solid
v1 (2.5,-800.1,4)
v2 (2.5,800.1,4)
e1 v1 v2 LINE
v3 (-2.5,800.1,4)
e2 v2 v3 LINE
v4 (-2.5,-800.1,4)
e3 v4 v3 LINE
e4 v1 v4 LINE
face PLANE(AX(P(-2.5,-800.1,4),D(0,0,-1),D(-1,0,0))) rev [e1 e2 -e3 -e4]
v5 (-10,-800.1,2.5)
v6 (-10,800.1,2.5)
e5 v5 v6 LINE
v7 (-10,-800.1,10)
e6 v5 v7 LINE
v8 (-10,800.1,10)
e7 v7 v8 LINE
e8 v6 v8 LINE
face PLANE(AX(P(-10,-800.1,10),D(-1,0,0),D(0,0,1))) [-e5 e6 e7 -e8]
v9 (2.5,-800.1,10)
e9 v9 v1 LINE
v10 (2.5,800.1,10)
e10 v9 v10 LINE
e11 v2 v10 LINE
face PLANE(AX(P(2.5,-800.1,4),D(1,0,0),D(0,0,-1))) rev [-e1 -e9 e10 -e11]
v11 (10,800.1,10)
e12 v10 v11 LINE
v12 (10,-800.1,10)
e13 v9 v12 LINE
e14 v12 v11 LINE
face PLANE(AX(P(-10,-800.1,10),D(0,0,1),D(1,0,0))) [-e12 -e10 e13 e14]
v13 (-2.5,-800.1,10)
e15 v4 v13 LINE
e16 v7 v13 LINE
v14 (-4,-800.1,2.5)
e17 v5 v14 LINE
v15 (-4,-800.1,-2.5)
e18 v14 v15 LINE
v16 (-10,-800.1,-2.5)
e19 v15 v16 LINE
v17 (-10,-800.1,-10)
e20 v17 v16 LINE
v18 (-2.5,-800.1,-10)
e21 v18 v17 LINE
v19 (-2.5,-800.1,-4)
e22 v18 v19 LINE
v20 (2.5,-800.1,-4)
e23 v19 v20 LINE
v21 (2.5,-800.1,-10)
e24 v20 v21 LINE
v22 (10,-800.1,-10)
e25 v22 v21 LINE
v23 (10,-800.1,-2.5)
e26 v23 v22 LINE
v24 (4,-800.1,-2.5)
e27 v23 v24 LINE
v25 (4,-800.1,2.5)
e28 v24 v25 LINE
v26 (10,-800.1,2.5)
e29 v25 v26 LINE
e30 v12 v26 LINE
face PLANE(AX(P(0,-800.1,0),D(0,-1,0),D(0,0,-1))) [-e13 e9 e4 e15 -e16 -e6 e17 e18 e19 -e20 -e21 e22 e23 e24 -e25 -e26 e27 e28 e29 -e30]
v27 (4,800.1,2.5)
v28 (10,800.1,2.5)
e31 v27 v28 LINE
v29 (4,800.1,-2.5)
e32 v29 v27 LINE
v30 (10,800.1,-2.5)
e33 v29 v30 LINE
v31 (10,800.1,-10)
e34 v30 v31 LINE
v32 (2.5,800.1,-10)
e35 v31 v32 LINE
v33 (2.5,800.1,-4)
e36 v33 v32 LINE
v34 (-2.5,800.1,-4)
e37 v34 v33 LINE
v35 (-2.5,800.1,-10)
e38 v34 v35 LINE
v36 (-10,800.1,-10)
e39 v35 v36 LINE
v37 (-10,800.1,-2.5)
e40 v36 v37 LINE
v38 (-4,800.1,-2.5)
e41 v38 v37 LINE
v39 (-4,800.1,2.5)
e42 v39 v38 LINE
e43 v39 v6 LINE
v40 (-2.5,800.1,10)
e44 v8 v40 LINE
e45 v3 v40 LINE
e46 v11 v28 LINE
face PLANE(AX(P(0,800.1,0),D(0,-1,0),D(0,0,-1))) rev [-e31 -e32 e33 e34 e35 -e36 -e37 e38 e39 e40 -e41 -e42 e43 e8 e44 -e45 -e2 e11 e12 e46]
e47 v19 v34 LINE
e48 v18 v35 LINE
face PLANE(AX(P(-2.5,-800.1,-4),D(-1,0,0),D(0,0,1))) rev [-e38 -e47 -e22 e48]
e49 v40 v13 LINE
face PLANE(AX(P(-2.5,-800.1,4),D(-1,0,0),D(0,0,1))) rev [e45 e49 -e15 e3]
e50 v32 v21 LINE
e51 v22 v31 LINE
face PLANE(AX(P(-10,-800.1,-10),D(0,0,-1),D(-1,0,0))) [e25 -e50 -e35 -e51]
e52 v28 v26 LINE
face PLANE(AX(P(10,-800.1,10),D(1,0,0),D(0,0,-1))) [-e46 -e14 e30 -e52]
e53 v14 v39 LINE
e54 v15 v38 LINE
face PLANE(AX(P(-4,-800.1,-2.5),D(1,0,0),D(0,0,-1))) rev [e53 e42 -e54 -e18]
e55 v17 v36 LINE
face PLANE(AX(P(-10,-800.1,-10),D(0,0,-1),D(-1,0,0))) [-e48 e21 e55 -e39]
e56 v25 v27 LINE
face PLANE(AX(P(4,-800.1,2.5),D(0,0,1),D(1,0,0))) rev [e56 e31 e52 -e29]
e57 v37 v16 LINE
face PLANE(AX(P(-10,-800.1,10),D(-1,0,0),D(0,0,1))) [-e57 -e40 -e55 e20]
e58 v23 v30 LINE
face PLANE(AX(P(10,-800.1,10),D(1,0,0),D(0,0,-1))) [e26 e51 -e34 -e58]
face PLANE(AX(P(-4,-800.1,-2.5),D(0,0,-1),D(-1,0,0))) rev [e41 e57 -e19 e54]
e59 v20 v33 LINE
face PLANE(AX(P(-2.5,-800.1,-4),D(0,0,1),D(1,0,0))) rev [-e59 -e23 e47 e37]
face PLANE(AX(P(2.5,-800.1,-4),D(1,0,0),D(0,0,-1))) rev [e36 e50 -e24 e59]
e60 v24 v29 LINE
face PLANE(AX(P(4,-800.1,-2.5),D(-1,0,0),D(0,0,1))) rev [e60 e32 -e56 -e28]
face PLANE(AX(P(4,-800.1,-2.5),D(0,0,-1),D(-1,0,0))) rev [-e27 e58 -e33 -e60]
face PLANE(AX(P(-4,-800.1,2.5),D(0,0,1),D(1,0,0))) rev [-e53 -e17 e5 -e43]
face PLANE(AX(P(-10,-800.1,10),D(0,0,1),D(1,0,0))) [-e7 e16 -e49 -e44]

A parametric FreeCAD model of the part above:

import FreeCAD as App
import Part
import Sketcher

doc = App.newDocument("Part")
params = doc.addObject("Spreadsheet::Sheet", "Params")
for row, (alias, value) in enumerate([
    ("sketch1_width", "20 mm"),
    ("pad1_length", "800.1 mm"),
    ("pad1_length2", "800.1 mm"),
    ("sketch2_width", "5 mm"),
    ("sketch2_width2", "12 mm"),
], start=1):
    params.set(f"A{row}", alias)
    params.set(f"B{row}", "=" + value)
    params.setAlias(f"B{row}", alias)

body = doc.addObject("PartDesign::Body", "Body")

# Sketch on XZ plane
sketch1 = body.newObject("Sketcher::SketchObject", "Sketch")
sketch1.AttachmentSupport = (doc.getObject("XZ_Plane"), [""])
sketch1.MapMode = "FlatFace"
sketch1.addGeometry(Part.LineSegment(App.Vector(-10, -10, 0), App.Vector(-10, 10, 0)), False)
sketch1.addGeometry(Part.LineSegment(App.Vector(-10, 10, 0), App.Vector(10, 10, 0)), False)
sketch1.addGeometry(Part.LineSegment(App.Vector(10, 10, 0), App.Vector(10, -10, 0)), False)
sketch1.addGeometry(Part.LineSegment(App.Vector(10, -10, 0), App.Vector(-10, -10, 0)), False)
sketch1.addConstraint(Sketcher.Constraint("Coincident", 0, 2, 1, 1))
sketch1.addConstraint(Sketcher.Constraint("Coincident", 1, 2, 2, 1))
sketch1.addConstraint(Sketcher.Constraint("Coincident", 2, 2, 3, 1))
sketch1.addConstraint(Sketcher.Constraint("Coincident", 3, 2, 0, 1))
sketch1.addConstraint(Sketcher.Constraint("Vertical", 0))
sketch1.addConstraint(Sketcher.Constraint("Horizontal", 1))
sketch1.addConstraint(Sketcher.Constraint("Vertical", 2))
sketch1.addConstraint(Sketcher.Constraint("Horizontal", 3))
sketch1.addConstraint(Sketcher.Constraint("Symmetric", 0, 2, 2, 2, -1, 1))
sketch1.addConstraint(Sketcher.Constraint("Equal", 3, 0))
sketch1.addConstraint(Sketcher.Constraint("DistanceX", 1, 1, 1, 2, 20.0))
sketch1.setExpression("Constraints[10]", "Params.sketch1_width")
pad1 = body.newObject("PartDesign::Pad", "Pad")
pad1.Profile = sketch1
pad1.Type = "TwoLengths"
pad1.setExpression("Length", "Params.pad1_length")
pad1.setExpression("Length2", "Params.pad1_length2")
pad1.Reversed = True

# Sketch on XZ plane
sketch2 = body.newObject("Sketcher::SketchObject", "Sketch001")
sketch2.AttachmentSupport = (doc.getObject("XZ_Plane"), [""])
sketch2.MapMode = "FlatFace"
sketch2.addGeometry(Part.LineSegment(App.Vector(-2, -16, 0), App.Vector(-2, -4, 0)), False)
sketch2.addGeometry(Part.LineSegment(App.Vector(-2, -4, 0), App.Vector(2, -4, 0)), False)
sketch2.addGeometry(Part.LineSegment(App.Vector(2, -4, 0), App.Vector(2, -16, 0)), False)
sketch2.addGeometry(Part.LineSegment(App.Vector(2, -16, 0), App.Vector(-2, -16, 0)), False)
sketch2.addGeometry(Part.LineSegment(App.Vector(4, -2, 0), App.Vector(4, 2, 0)), False)
sketch2.addGeometry(Part.LineSegment(App.Vector(4, 2, 0), App.Vector(16, 2, 0)), False)
sketch2.addGeometry(Part.LineSegment(App.Vector(16, 2, 0), App.Vector(16, -2, 0)), False)
sketch2.addGeometry(Part.LineSegment(App.Vector(16, -2, 0), App.Vector(4, -2, 0)), False)
sketch2.addGeometry(Part.LineSegment(App.Vector(-16, -2, 0), App.Vector(-16, 2, 0)), False)
sketch2.addGeometry(Part.LineSegment(App.Vector(-16, 2, 0), App.Vector(-4, 2, 0)), False)
sketch2.addGeometry(Part.LineSegment(App.Vector(-4, 2, 0), App.Vector(-4, -2, 0)), False)
sketch2.addGeometry(Part.LineSegment(App.Vector(-4, -2, 0), App.Vector(-16, -2, 0)), False)
sketch2.addGeometry(Part.LineSegment(App.Vector(-2, 4, 0), App.Vector(-2, 16, 0)), False)
sketch2.addGeometry(Part.LineSegment(App.Vector(-2, 16, 0), App.Vector(2, 16, 0)), False)
sketch2.addGeometry(Part.LineSegment(App.Vector(2, 16, 0), App.Vector(2, 4, 0)), False)
sketch2.addGeometry(Part.LineSegment(App.Vector(2, 4, 0), App.Vector(-2, 4, 0)), False)
sketch2.addConstraint(Sketcher.Constraint("Coincident", 0, 2, 1, 1))
sketch2.addConstraint(Sketcher.Constraint("Coincident", 1, 2, 2, 1))
sketch2.addConstraint(Sketcher.Constraint("Coincident", 2, 2, 3, 1))
sketch2.addConstraint(Sketcher.Constraint("Coincident", 3, 2, 0, 1))
sketch2.addConstraint(Sketcher.Constraint("Coincident", 4, 2, 5, 1))
sketch2.addConstraint(Sketcher.Constraint("Coincident", 5, 2, 6, 1))
sketch2.addConstraint(Sketcher.Constraint("Coincident", 6, 2, 7, 1))
sketch2.addConstraint(Sketcher.Constraint("Coincident", 7, 2, 4, 1))
sketch2.addConstraint(Sketcher.Constraint("Coincident", 8, 2, 9, 1))
sketch2.addConstraint(Sketcher.Constraint("Coincident", 9, 2, 10, 1))
sketch2.addConstraint(Sketcher.Constraint("Coincident", 10, 2, 11, 1))
sketch2.addConstraint(Sketcher.Constraint("Coincident", 11, 2, 8, 1))
sketch2.addConstraint(Sketcher.Constraint("Coincident", 12, 2, 13, 1))
sketch2.addConstraint(Sketcher.Constraint("Coincident", 13, 2, 14, 1))
sketch2.addConstraint(Sketcher.Constraint("Coincident", 14, 2, 15, 1))
sketch2.addConstraint(Sketcher.Constraint("Coincident", 15, 2, 12, 1))
sketch2.addConstraint(Sketcher.Constraint("Vertical", 0))
sketch2.addConstraint(Sketcher.Constraint("Horizontal", 1))
sketch2.addConstraint(Sketcher.Constraint("Vertical", 2))
sketch2.addConstraint(Sketcher.Constraint("Horizontal", 3))
sketch2.addConstraint(Sketcher.Constraint("Vertical", 4))
sketch2.addConstraint(Sketcher.Constraint("Horizontal", 5))
sketch2.addConstraint(Sketcher.Constraint("Vertical", 6))
sketch2.addConstraint(Sketcher.Constraint("Horizontal", 7))
sketch2.addConstraint(Sketcher.Constraint("Vertical", 8))
sketch2.addConstraint(Sketcher.Constraint("Horizontal", 9))
sketch2.addConstraint(Sketcher.Constraint("Vertical", 10))
sketch2.addConstraint(Sketcher.Constraint("Horizontal", 11))
sketch2.addConstraint(Sketcher.Constraint("Vertical", 12))
sketch2.addConstraint(Sketcher.Constraint("Horizontal", 13))
sketch2.addConstraint(Sketcher.Constraint("Vertical", 14))
sketch2.addConstraint(Sketcher.Constraint("Horizontal", 15))
sketch2.addConstraint(Sketcher.Constraint("Symmetric", 6, 2, 8, 2, -1, 1))
sketch2.addConstraint(Sketcher.Constraint("Symmetric", 4, 2, 10, 2, -1, 1))
sketch2.addConstraint(Sketcher.Constraint("Symmetric", 2, 2, 12, 2, -1, 1))
sketch2.addConstraint(Sketcher.Constraint("Symmetric", 0, 2, 14, 2, -1, 1))
sketch2.addConstraint(Sketcher.Constraint("Horizontal", 5, 2, 8, 2))
sketch2.addConstraint(Sketcher.Constraint("Vertical", 3, 2, 12, 2))
sketch2.addConstraint(Sketcher.Constraint("Equal", 11, 0))
sketch2.addConstraint(Sketcher.Constraint("Equal", 15, 4))
sketch2.addConstraint(Sketcher.Constraint("DistanceX", 1, 1, 1, 2, 5.0))
sketch2.addConstraint(Sketcher.Constraint("DistanceX", 5, 1, 5, 2, 12.0))
sketch2.addConstraint(Sketcher.Constraint("DistanceY", 0, 2, -1, 1, 4.0))
sketch2.addConstraint(Sketcher.Constraint("DistanceX", -1, 1, 4, 2, 4.0))
sketch2.setExpression("Constraints[40]", "Params.sketch2_width")
sketch2.setExpression("Constraints[41]", "Params.sketch2_width2")
pocket1 = body.newObject("PartDesign::Pocket", "Pocket")
pocket1.Profile = sketch2
pocket1.Type = "ThroughAll"
pocket1.Midplane = True

doc.recompute()
